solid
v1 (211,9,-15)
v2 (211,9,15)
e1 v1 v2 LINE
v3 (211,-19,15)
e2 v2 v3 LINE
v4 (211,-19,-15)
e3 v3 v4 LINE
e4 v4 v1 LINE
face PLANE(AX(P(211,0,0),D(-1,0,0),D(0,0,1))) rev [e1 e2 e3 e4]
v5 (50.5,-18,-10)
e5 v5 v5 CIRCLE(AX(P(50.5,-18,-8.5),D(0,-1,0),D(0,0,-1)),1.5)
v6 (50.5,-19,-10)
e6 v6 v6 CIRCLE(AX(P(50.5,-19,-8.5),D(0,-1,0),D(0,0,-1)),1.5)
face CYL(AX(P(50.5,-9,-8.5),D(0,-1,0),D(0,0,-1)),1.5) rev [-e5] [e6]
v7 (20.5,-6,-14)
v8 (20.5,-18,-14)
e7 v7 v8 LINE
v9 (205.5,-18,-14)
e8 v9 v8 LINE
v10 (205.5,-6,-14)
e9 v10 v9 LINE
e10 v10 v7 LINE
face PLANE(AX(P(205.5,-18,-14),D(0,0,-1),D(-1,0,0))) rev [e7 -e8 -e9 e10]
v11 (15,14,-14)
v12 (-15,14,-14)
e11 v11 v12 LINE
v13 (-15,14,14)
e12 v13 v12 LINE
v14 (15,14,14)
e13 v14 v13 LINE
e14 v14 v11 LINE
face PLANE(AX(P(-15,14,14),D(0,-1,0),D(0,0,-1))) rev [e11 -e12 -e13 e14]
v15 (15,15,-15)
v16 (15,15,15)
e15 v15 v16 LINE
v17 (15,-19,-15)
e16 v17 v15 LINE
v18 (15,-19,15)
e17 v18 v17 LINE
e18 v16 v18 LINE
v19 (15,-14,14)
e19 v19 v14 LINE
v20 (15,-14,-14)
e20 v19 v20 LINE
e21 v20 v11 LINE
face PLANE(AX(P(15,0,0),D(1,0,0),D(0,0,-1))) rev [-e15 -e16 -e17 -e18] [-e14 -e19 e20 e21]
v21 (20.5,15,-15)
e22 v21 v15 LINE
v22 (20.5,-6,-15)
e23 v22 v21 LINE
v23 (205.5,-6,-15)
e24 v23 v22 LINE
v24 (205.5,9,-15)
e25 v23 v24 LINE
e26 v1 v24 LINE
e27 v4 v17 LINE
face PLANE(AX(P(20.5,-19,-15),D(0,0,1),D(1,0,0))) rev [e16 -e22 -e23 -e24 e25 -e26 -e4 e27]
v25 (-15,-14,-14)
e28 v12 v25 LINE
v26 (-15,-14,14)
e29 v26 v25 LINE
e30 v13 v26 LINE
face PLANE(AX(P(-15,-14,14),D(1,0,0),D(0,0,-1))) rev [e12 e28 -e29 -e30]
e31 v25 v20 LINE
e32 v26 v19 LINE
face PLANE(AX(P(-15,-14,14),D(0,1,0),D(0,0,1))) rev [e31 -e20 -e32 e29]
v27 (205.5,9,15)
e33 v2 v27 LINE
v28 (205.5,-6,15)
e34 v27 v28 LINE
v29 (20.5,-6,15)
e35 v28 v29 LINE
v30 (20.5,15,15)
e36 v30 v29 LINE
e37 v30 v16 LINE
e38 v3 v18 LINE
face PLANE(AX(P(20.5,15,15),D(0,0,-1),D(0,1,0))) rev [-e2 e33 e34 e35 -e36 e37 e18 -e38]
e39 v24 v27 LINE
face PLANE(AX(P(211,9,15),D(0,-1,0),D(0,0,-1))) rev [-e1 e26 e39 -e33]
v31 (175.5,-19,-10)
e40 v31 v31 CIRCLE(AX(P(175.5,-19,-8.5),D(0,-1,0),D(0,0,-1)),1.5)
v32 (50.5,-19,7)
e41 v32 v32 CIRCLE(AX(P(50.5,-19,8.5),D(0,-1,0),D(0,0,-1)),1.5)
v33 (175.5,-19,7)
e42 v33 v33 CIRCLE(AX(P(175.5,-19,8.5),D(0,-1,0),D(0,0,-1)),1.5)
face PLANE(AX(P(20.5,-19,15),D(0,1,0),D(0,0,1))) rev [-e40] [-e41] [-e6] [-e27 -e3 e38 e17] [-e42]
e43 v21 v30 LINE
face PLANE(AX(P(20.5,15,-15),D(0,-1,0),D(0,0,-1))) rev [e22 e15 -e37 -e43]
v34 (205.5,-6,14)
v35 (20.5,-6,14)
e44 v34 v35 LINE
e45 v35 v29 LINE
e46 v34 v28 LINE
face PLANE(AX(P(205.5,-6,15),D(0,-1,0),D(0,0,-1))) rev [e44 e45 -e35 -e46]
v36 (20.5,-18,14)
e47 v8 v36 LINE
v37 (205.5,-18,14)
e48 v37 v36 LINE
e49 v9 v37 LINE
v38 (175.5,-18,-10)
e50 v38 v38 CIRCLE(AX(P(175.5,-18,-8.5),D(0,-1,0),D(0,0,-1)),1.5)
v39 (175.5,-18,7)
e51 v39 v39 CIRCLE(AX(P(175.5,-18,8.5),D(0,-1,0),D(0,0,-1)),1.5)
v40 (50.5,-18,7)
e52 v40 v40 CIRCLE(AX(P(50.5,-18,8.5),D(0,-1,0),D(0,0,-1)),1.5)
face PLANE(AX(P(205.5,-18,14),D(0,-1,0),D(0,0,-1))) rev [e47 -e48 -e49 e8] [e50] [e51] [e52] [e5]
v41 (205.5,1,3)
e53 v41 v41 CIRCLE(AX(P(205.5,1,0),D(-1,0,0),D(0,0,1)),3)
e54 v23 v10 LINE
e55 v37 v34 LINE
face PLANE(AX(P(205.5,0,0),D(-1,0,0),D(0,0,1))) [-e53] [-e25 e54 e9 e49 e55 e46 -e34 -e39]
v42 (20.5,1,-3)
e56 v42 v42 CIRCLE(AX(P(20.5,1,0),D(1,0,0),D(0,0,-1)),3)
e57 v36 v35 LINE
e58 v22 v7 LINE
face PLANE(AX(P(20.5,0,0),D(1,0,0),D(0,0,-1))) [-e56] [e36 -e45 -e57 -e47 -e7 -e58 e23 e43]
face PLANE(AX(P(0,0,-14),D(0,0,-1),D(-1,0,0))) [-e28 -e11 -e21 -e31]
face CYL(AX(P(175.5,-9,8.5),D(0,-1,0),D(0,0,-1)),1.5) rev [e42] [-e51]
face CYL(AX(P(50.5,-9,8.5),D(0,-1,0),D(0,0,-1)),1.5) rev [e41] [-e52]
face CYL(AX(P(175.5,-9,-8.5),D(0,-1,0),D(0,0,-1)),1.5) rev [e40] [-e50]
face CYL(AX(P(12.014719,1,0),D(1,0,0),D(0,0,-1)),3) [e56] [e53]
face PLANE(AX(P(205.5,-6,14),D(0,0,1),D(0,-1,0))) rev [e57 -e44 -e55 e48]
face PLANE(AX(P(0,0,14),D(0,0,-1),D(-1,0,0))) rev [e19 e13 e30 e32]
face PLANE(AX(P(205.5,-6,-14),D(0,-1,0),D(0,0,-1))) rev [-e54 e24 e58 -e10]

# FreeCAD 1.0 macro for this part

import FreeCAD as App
import Part
import Sketcher

V = App.Vector


def add_polygon(sketch, points):
    """Adds a closed chain of lines whose ends are joined by coincident constraints."""
    first, n = sketch.GeometryCount, len(points)
    for a, b in zip(points, points[1:] + points[:1]):
        sketch.addGeometry(Part.LineSegment(App.Vector(*a, 0), App.Vector(*b, 0)), False)
    for i in range(n):
        sketch.addConstraint(Sketcher.Constraint("Coincident", first + i, 2, first + (i + 1) % n, 1))

doc = App.newDocument("Part")
params = doc.addObject("Spreadsheet::Sheet", "Params")
for row, (alias, value) in enumerate([
    ("sketch1_width", "30 mm"),
    ("sketch1_height", "28 mm"),
    ("pad1_length", "28 mm"),
    ("sketch2_width", "34 mm"),
    ("sketch2_height", "30 mm"),
    ("pad2_length", "5.5 mm"),
    ("sketch3_width", "13 mm"),
    ("sketch3_width2", "12 mm"),
    ("sketch3_height", "30 mm"),
    ("sketch3_height2", "1 mm"),
    ("pad3_length", "185 mm"),
    ("sketch4_width", "28 mm"),
    ("sketch4_height", "30 mm"),
    ("pad4_length", "5.5 mm"),
    ("sketch5_diameter", "6 mm"),
    ("pad5_length", "190.5 mm"),
    ("sketch6_diameter", "3 mm"),
    ("pocket1_length", "10 mm"),
], start=1):
    params.set(f"A{row}", alias)
    params.set(f"B{row}", "=" + value)
    params.setAlias(f"B{row}", alias)

body = doc.addObject("PartDesign::Body", "Body")

sketch1 = body.newObject("Sketcher::SketchObject", "Sketch")
sketch1.AttachmentSupport = (doc.getObject("XY_Plane"), [""])
sketch1.MapMode = "FlatFace"
add_polygon(sketch1, [(-15, 14), (-15, -14), (15, -14), (15, 14)])
sketch1.addConstraint([
    Sketcher.Constraint("Vertical", 0),
    Sketcher.Constraint("Horizontal", 1),
    Sketcher.Constraint("Vertical", 2),
    Sketcher.Constraint("Horizontal", 3),
    Sketcher.Constraint("Symmetric", 0, 2, 2, 2, -1, 1),
    Sketcher.Constraint("DistanceX", 1, 1, 1, 2, 30.0),
    Sketcher.Constraint("DistanceY", 0, 2, 0, 1, 28.0),
])
sketch1.setExpression("Constraints[9]", "Params.sketch1_width")
sketch1.setExpression("Constraints[10]", "Params.sketch1_height")
pad1 = body.newObject("PartDesign::Pad", "Pad")
pad1.Profile = sketch1
pad1.setExpression("Length", "Params.pad1_length")
pad1.Midplane = True

sketch2 = body.newObject("Sketcher::SketchObject", "Sketch001")
sketch2.AttachmentSupport = (doc.getObject("YZ_Plane"), [""])
sketch2.MapMode = "FlatFace"
sketch2.AttachmentOffset = App.Placement(V(0, 0, 15), App.Rotation())
add_polygon(sketch2, [(15, 15), (-19, 15), (-19, -15), (15, -15)])
sketch2.addConstraint([
    Sketcher.Constraint("Horizontal", 0),
    Sketcher.Constraint("Vertical", 1),
    Sketcher.Constraint("Horizontal", 2),
    Sketcher.Constraint("Vertical", 3),
    Sketcher.Constraint("DistanceX", 0, 2, 0, 1, 34.0),
    Sketcher.Constraint("DistanceY", 1, 2, 1, 1, 30.0),
    Sketcher.Constraint("DistanceX", 0, 2, -1, 1, 19.0),
    Sketcher.Constraint("DistanceY", -1, 1, 0, 2, 15.0),
])
sketch2.setExpression("Constraints[8]", "Params.sketch2_width")
sketch2.setExpression("Constraints[9]", "Params.sketch2_height")
pad2 = body.newObject("PartDesign::Pad", "Pad001")
pad2.Profile = sketch2
pad2.setExpression("Length", "Params.pad2_length")

sketch3 = body.newObject("Sketcher::SketchObject", "Sketch002")
sketch3.AttachmentSupport = (doc.getObject("YZ_Plane"), [""])
sketch3.MapMode = "FlatFace"
sketch3.AttachmentOffset = App.Placement(V(0, 0, 20.5), App.Rotation())
add_polygon(sketch3, [(-19, 15), (-19, -15), (-6, -15), (-6, -14), (-18, -14), (-18, 14), (-6, 14), (-6, 15)])
sketch3.addConstraint([
    Sketcher.Constraint("Vertical", 0),
    Sketcher.Constraint("Horizontal", 1),
    Sketcher.Constraint("Vertical", 2),
    Sketcher.Constraint("Horizontal", 3),
    Sketcher.Constraint("Vertical", 4),
    Sketcher.Constraint("Horizontal", 5),
    Sketcher.Constraint("Vertical", 6),
    Sketcher.Constraint("Horizontal", 7),
    Sketcher.Constraint("Symmetric", 2, 2, 5, 2, -1),
    Sketcher.Constraint("Equal", 2, 6),
    Sketcher.Constraint("DistanceX", 1, 1, 1, 2, 13.0),
    Sketcher.Constraint("DistanceX", 3, 2, 3, 1, 12.0),
    Sketcher.Constraint("DistanceY", 0, 2, 0, 1, 30.0),
    Sketcher.Constraint("DistanceY", 2, 1, 2, 2, 1.0),
    Sketcher.Constraint("DistanceX", 0, 2, -1, 1, 19.0),
])
sketch3.setExpression("Constraints[18]", "Params.sketch3_width")
sketch3.setExpression("Constraints[19]", "Params.sketch3_width2")
sketch3.setExpression("Constraints[20]", "Params.sketch3_height")
sketch3.setExpression("Constraints[21]", "Params.sketch3_height2")
pad3 = body.newObject("PartDesign::Pad", "Pad002")
pad3.Profile = sketch3
pad3.setExpression("Length", "Params.pad3_length")

sketch4 = body.newObject("Sketcher::SketchObject", "Sketch003")
sketch4.AttachmentSupport = (doc.getObject("YZ_Plane"), [""])
sketch4.MapMode = "FlatFace"
sketch4.AttachmentOffset = App.Placement(V(0, 0, 205.5), App.Rotation())
add_polygon(sketch4, [(9, 15), (-19, 15), (-19, -15), (9, -15)])
sketch4.addConstraint([
    Sketcher.Constraint("Horizontal", 0),
    Sketcher.Constraint("Vertical", 1),
    Sketcher.Constraint("Horizontal", 2),
    Sketcher.Constraint("Vertical", 3),
    Sketcher.Constraint("DistanceX", 0, 2, 0, 1, 28.0),
    Sketcher.Constraint("DistanceY", 1, 2, 1, 1, 30.0),
    Sketcher.Constraint("DistanceX", 0, 2, -1, 1, 19.0),
    Sketcher.Constraint("DistanceY", -1, 1, 0, 2, 15.0),
])
sketch4.setExpression("Constraints[8]", "Params.sketch4_width")
sketch4.setExpression("Constraints[9]", "Params.sketch4_height")
pad4 = body.newObject("PartDesign::Pad", "Pad003")
pad4.Profile = sketch4
pad4.setExpression("Length", "Params.pad4_length")

sketch5 = body.newObject("Sketcher::SketchObject", "Sketch004")
sketch5.AttachmentSupport = (doc.getObject("YZ_Plane"), [""])
sketch5.MapMode = "FlatFace"
sketch5.AttachmentOffset = App.Placement(V(0, 0, 211), App.Rotation())
sketch5.addGeometry(Part.Circle(V(1, 0, 0), V(0, 0, 1), 3), False)
sketch5.addConstraint([
    Sketcher.Constraint("PointOnObject", 0, 3, -1),
    Sketcher.Constraint("Diameter", 0, 6.0),
    Sketcher.Constraint("DistanceX", -1, 1, 0, 3, 1.0),
])
sketch5.setExpression("Constraints[1]", "Params.sketch5_diameter")
pad5 = body.newObject("PartDesign::Pad", "Pad004")
pad5.Profile = sketch5
pad5.setExpression("Length", "Params.pad5_length")
pad5.Reversed = True

sketch6 = body.newObject("Sketcher::SketchObject", "Sketch005")
sketch6.AttachmentSupport = (doc.getObject("XZ_Plane"), [""])
sketch6.MapMode = "FlatFace"
sketch6.AttachmentOffset = App.Placement(V(0, 0, 19), App.Rotation())
sketch6.addGeometry([
    Part.Circle(V(50.5, 8.5, 0), V(0, 0, 1), 1.5),
    Part.Circle(V(175.5, 8.5, 0), V(0, 0, 1), 1.5),
    Part.Circle(V(175.5, -8.5, 0), V(0, 0, 1), 1.5),
    Part.Circle(V(50.5, -8.5, 0), V(0, 0, 1), 1.5),
], False)
sketch6.addConstraint([
    Sketcher.Constraint("Equal", 0, 1),
    Sketcher.Constraint("Equal", 1, 2),
    Sketcher.Constraint("Equal", 2, 3),
    Sketcher.Constraint("Symmetric", 1, 3, 2, 3, -1),
    Sketcher.Constraint("Symmetric", 0, 3, 3, 3, -1),
    Sketcher.Constraint("Horizontal", 0, 3, 1, 3),
    Sketcher.Constraint("Diameter", 0, 3.0),
    Sketcher.Constraint("DistanceX", 0, 3, 1, 3, 125.0),
    Sketcher.Constraint("DistanceY", 2, 3, 1, 3, 17.0),
    Sketcher.Constraint("DistanceX", -1, 1, 0, 3, 50.5),
])
sketch6.setExpression("Constraints[6]", "Params.sketch6_diameter")
pocket1 = body.newObject("PartDesign::Pocket", "Pocket")
pocket1.Profile = sketch6
pocket1.setExpression("Length", "Params.pocket1_length")

doc.recompute()
